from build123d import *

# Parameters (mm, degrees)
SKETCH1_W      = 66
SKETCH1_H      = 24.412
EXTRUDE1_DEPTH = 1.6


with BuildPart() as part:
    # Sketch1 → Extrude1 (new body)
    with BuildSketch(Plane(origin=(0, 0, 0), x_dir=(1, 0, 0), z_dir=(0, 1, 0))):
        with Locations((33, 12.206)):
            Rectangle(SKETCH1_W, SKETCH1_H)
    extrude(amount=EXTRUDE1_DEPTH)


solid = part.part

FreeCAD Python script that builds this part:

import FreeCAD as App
import Part
import Sketcher

V = App.Vector

doc = App.newDocument("Part")
body = doc.addObject("PartDesign::Body", "Body")

# Sketch on XZ plane
sketch1 = body.newObject("Sketcher::SketchObject", "Sketch")
sketch1.AttachmentSupport = (doc.getObject("XZ_Plane"), [""])
sketch1.MapMode = "FlatFace"
sketch1.addGeometry(Part.LineSegment(V(0, -24, 0), V(0, 0, 0)), False)
sketch1.addGeometry(Part.LineSegment(V(0, 0, 0), V(66, 0, 0)), False)
sketch1.addGeometry(Part.LineSegment(V(66, 0, 0), V(66, -24, 0)), False)
sketch1.addGeometry(Part.LineSegment(V(66, -24, 0), V(0, -24, 0)), False)
sketch1.addConstraint(Sketcher.Constraint("Coincident", 0, 2, 1, 1))
sketch1.addConstraint(Sketcher.Constraint("Coincident", 1, 2, 2, 1))
sketch1.addConstraint(Sketcher.Constraint("Coincident", 2, 2, 3, 1))
sketch1.addConstraint(Sketcher.Constraint("Coincident", 3, 2, 0, 1))
sketch1.addConstraint(Sketcher.Constraint("Vertical", 0))
sketch1.addConstraint(Sketcher.Constraint("Horizontal", 1))
sketch1.addConstraint(Sketcher.Constraint("Vertical", 2))
sketch1.addConstraint(Sketcher.Constraint("Horizontal", 3))
sketch1.addConstraint(Sketcher.Constraint("Coincident", 0, 2, -1, 1))
sketch1.addConstraint(Sketcher.Constraint("DistanceX", 1, 1, 1, 2, 66.0))
sketch1.addConstraint(Sketcher.Constraint("DistanceY", 0, 1, 0, 2, 24.412))
pad1 = body.newObject("PartDesign::Pad", "Pad")
pad1.Profile = sketch1
pad1.Length = 1.6
pad1.Reversed = True

doc.recompute()
